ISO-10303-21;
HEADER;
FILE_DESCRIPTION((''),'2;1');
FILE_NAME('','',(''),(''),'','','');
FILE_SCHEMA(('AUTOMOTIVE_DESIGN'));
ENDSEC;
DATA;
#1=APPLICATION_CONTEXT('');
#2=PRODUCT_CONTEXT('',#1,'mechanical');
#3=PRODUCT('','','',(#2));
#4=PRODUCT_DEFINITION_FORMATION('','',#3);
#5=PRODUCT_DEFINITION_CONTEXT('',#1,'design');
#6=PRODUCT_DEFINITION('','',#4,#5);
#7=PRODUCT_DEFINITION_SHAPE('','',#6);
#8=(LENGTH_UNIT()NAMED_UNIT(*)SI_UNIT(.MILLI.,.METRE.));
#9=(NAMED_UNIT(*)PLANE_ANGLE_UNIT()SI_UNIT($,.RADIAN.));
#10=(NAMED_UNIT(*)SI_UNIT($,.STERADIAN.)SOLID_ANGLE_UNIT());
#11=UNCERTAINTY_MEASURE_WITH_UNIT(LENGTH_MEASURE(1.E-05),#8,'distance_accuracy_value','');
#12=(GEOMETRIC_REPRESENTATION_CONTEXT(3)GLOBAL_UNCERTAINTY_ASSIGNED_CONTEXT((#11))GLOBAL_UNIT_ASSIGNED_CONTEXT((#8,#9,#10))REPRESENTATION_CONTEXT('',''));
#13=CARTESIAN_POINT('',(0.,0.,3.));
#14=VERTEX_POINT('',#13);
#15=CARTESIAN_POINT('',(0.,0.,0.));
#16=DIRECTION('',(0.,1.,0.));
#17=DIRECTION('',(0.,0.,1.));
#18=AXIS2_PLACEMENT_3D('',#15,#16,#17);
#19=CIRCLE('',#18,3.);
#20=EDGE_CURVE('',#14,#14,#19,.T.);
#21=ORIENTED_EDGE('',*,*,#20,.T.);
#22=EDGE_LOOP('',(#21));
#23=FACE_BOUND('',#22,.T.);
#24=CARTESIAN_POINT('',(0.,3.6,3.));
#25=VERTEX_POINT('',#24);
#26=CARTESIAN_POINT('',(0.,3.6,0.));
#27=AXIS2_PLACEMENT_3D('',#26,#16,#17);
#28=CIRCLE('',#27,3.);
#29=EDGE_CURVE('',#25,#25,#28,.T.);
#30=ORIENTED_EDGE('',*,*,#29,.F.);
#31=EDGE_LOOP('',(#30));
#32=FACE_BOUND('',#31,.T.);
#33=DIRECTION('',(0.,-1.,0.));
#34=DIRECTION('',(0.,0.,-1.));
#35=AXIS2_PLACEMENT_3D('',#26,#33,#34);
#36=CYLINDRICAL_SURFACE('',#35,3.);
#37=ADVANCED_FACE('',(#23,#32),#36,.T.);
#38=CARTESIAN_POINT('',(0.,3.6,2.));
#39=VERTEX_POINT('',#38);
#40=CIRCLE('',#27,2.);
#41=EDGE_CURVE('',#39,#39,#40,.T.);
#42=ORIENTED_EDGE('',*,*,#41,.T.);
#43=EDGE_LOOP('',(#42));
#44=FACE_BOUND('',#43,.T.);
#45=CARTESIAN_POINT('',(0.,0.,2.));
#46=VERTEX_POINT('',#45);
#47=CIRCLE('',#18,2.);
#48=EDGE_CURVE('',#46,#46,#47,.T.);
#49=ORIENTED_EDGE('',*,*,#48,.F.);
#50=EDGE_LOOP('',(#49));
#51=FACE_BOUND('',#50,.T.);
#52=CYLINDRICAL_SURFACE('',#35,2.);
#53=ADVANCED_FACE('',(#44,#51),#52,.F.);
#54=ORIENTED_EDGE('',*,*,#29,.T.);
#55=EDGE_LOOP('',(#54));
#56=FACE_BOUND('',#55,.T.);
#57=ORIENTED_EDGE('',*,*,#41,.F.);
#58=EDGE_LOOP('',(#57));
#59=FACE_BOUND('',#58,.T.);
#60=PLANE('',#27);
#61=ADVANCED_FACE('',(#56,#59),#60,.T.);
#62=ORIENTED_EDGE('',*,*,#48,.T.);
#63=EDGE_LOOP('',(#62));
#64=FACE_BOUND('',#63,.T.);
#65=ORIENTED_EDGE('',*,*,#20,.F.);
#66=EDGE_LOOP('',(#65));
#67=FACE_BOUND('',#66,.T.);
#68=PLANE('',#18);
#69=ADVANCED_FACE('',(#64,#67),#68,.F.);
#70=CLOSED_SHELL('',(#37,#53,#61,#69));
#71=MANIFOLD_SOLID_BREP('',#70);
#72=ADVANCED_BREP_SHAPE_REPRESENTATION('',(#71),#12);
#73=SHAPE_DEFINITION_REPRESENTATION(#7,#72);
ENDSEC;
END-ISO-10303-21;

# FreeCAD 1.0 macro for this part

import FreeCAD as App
import Part
import Sketcher
from FreeCAD import Vector

doc = App.newDocument("Part")
body = doc.addObject("PartDesign::Body", "Body")

# Sketch on XZ plane
sketch1 = body.newObject("Sketcher::SketchObject", "Sketch")
sketch1.AttachmentSupport = (doc.getObject("XZ_Plane"), [""])
sketch1.MapMode = "FlatFace"
sketch1.addGeometry(Part.Circle(Vector(0, 0, 0), Vector(0, 0, 1), 3), False)
sketch1.addGeometry(Part.Circle(Vector(0, 0, 0), Vector(0, 0, 1), 2), False)
sketch1.addConstraint(Sketcher.Constraint("Coincident", 0, 3, -1, 1))
sketch1.addConstraint(Sketcher.Constraint("Coincident", 1, 3, -1, 1))
sketch1.addConstraint(Sketcher.Constraint("Diameter", 0, 6.0))
sketch1.addConstraint(Sketcher.Constraint("Diameter", 1, 4.0))
pad1 = body.newObject("PartDesign::Pad", "Pad")
pad1.Profile = sketch1
pad1.Length = 3.6
pad1.Reversed = True

doc.recompute()
